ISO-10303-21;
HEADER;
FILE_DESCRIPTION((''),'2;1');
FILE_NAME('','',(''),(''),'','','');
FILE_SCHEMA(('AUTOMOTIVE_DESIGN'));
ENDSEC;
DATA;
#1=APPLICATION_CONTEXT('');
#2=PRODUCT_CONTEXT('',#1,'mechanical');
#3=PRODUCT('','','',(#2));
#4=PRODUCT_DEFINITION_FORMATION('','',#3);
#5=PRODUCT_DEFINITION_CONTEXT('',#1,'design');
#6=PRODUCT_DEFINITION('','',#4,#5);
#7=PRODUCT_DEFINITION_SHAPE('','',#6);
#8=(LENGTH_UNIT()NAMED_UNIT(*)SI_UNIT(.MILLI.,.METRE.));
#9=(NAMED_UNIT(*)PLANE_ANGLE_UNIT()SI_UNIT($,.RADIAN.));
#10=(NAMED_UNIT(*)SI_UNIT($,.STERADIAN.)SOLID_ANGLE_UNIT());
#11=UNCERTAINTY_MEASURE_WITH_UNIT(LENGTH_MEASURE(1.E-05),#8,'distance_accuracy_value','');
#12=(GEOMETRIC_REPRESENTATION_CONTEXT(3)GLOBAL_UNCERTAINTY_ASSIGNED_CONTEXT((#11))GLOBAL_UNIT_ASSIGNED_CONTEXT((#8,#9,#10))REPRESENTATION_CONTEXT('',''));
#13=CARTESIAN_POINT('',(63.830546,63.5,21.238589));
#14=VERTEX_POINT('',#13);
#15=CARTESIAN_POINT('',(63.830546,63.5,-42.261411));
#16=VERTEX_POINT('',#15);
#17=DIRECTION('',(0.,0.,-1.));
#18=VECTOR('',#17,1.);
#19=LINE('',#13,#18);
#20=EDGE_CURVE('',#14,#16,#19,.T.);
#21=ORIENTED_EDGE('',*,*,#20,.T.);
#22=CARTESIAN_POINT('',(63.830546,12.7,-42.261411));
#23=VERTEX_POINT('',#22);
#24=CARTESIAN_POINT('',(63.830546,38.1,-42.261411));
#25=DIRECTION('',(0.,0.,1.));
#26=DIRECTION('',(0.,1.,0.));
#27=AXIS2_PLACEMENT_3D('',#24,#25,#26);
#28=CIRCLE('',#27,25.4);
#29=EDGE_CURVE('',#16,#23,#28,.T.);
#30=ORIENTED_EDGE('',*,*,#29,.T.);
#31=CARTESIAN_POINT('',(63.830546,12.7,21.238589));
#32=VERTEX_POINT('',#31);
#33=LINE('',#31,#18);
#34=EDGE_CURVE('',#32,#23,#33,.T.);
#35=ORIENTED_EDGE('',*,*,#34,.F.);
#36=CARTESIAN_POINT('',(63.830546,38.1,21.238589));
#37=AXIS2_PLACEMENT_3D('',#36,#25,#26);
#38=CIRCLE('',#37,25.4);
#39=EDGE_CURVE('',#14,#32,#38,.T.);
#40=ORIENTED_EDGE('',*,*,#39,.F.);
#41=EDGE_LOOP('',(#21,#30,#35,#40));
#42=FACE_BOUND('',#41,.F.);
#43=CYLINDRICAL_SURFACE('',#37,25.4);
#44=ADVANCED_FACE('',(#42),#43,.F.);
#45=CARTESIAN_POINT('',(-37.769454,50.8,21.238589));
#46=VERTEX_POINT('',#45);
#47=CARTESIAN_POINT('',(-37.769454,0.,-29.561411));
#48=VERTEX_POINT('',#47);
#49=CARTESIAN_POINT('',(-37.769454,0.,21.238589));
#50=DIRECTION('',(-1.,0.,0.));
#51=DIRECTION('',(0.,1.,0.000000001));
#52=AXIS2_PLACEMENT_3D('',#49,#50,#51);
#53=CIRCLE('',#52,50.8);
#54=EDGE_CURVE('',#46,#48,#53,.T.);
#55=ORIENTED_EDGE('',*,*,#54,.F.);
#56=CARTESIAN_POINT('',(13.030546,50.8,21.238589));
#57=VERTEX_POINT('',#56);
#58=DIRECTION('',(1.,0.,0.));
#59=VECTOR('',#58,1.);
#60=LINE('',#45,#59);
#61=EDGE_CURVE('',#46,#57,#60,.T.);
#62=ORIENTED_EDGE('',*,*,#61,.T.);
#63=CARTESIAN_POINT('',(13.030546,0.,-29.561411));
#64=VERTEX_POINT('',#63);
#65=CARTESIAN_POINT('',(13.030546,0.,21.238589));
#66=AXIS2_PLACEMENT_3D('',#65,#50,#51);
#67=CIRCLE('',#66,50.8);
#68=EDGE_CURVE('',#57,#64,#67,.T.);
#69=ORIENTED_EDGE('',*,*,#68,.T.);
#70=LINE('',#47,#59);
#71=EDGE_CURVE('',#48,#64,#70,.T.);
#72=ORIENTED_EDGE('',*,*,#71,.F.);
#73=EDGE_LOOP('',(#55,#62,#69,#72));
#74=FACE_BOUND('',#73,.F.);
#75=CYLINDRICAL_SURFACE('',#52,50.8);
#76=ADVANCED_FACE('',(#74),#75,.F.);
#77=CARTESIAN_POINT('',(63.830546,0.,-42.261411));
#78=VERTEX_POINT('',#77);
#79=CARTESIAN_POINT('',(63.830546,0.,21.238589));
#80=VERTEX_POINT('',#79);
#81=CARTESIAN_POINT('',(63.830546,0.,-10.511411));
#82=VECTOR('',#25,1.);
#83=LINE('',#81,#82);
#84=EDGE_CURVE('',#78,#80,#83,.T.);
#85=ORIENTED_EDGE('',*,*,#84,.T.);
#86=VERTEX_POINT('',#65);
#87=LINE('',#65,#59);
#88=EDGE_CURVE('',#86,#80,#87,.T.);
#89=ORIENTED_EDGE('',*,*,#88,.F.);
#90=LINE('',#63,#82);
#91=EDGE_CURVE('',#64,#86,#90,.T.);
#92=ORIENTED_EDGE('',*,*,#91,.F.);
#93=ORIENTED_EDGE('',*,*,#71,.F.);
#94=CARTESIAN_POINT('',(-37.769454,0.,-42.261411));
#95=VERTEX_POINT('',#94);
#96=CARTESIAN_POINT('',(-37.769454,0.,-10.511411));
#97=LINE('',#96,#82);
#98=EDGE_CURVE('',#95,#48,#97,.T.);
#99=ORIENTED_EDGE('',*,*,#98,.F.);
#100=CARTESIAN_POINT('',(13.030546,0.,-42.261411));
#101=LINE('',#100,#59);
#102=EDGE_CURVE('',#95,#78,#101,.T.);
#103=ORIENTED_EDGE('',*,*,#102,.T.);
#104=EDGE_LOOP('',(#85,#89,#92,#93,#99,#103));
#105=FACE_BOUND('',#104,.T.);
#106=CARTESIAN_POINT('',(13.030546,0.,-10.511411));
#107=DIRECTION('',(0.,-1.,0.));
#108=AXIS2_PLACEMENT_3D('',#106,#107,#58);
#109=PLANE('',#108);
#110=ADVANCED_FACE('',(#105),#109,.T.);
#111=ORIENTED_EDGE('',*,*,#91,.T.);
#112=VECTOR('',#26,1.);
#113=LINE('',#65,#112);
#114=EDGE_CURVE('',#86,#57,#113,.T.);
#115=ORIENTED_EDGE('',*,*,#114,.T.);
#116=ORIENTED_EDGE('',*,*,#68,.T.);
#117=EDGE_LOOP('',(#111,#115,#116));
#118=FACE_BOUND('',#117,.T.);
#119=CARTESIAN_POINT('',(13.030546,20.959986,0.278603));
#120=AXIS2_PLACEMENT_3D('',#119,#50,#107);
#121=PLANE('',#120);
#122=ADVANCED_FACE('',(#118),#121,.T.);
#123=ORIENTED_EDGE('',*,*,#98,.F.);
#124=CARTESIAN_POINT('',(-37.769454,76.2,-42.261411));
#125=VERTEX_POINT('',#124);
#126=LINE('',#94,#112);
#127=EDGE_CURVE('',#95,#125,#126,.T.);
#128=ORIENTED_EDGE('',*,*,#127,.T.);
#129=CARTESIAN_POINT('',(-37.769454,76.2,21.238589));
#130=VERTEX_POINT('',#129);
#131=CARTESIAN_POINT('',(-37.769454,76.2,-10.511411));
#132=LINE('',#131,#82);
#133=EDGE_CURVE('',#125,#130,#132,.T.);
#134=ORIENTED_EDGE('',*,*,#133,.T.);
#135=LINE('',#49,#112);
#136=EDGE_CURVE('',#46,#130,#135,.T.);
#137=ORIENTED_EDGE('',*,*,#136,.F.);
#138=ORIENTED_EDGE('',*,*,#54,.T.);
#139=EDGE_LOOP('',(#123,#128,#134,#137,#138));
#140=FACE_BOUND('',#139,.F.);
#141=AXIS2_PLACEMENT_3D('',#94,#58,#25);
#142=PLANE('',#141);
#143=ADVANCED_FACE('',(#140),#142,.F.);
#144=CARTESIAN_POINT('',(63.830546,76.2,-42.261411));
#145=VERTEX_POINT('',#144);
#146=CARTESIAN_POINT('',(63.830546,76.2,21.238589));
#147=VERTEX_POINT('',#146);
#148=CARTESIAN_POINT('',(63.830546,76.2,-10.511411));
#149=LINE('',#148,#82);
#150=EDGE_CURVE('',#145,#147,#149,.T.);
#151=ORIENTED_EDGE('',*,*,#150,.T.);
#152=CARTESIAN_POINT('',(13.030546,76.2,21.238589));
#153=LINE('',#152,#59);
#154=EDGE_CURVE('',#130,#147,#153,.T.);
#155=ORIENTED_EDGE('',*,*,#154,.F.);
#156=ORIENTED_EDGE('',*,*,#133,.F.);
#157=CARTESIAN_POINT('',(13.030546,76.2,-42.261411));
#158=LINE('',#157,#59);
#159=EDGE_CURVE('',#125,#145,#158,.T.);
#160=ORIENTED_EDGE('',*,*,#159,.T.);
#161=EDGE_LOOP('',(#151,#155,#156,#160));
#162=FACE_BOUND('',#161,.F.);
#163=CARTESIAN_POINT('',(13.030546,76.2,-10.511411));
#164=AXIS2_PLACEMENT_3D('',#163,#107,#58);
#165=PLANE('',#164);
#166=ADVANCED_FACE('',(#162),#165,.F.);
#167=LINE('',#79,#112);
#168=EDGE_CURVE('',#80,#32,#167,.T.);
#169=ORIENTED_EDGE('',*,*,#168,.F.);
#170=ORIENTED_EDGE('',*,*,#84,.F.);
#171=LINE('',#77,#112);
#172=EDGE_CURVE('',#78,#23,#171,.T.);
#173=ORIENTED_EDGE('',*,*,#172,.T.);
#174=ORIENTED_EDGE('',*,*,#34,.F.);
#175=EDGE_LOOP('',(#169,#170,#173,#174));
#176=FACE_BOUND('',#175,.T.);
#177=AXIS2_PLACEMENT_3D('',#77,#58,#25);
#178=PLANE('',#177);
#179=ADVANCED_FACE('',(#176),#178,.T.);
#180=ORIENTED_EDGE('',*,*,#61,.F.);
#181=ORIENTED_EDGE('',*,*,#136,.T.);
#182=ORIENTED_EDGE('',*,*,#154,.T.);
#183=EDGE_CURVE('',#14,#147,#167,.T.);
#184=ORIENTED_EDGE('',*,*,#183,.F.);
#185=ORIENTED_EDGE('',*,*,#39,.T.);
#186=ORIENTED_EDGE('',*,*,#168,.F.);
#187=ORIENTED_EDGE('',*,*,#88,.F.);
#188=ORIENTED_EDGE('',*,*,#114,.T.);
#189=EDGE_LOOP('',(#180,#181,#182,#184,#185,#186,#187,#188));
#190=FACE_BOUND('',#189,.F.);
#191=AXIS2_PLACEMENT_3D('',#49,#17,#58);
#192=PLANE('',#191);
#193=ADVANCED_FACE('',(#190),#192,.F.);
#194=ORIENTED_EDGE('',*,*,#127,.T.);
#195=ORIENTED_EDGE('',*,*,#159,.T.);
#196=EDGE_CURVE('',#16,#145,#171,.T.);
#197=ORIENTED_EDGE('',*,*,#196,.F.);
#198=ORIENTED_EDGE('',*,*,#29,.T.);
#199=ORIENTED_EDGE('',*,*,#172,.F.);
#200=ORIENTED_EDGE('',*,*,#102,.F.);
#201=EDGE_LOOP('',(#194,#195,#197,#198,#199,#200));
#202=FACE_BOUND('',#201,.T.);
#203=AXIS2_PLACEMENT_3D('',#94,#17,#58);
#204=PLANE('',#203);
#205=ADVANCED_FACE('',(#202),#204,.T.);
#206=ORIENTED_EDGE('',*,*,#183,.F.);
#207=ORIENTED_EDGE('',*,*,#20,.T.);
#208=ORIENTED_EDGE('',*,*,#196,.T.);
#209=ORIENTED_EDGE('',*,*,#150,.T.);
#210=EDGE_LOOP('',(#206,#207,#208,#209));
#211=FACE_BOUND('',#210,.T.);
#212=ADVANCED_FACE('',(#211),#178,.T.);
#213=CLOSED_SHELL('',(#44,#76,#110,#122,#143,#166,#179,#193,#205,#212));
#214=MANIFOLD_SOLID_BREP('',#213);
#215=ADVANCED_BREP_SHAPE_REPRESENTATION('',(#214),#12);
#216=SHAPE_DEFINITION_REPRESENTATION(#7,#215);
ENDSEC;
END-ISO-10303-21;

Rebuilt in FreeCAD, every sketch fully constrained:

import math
import FreeCAD as App
import Part
import Sketcher

V = App.Vector
Q = App.Units.Quantity

doc = App.newDocument("Part")
body = doc.addObject("PartDesign::Body", "Body")

sketch1 = body.newObject("Sketcher::SketchObject", "Sketch")
sketch1.AttachmentSupport = (doc.getObject("XZ_Plane"), [""])
sketch1.MapMode = "FlatFace"
sketch1.addGeometry([
    Part.LineSegment(V(-37.769454, 21.238589, 0), V(-37.769454, -42.261411, 0)),
    Part.LineSegment(V(-37.769454, -42.261411, 0), V(63.830546, -42.261411, 0)),
    Part.LineSegment(V(63.830546, -42.261411, 0), V(63.830546, 21.238589, 0)),
    Part.LineSegment(V(63.830546, 21.238589, 0), V(-37.769454, 21.238589, 0)),
], False)
sketch1.addConstraint([
    Sketcher.Constraint("Coincident", 0, 2, 1, 1),
    Sketcher.Constraint("Coincident", 1, 2, 2, 1),
    Sketcher.Constraint("Coincident", 2, 2, 3, 1),
    Sketcher.Constraint("Coincident", 3, 2, 0, 1),
    Sketcher.Constraint("Vertical", 0),
    Sketcher.Constraint("Horizontal", 1),
    Sketcher.Constraint("Vertical", 2),
    Sketcher.Constraint("Horizontal", 3),
    Sketcher.Constraint("DistanceX", 1, 1, 1, 2, Q("4 in")),
    Sketcher.Constraint("DistanceY", 0, 2, 0, 1, Q("2.5 in")),
    Sketcher.Constraint("DistanceY", 0, 2, -1, 1, Q("42.261411 mm")),
    Sketcher.Constraint("DistanceX", 0, 2, -1, 1, Q("37.769454 mm")),
])
pad1 = body.newObject("PartDesign::Pad", "Pad")
pad1.Profile = sketch1
pad1.Length = Q("3 in")
pad1.Reversed = True

sketch2 = body.newObject("Sketcher::SketchObject", "Sketch001")
sketch2.AttachmentSupport = (doc.getObject("XY_Plane"), [""])
sketch2.MapMode = "FlatFace"
sketch2.AttachmentOffset = App.Placement(V(0, 0, 21.238589), App.Rotation())
sketch2.addGeometry([
    Part.LineSegment(V(63.830546, 12.7, 0), V(63.830546, 63.5, 0)),
    Part.ArcOfCircle(Part.Circle(V(63.830546, 38.1, 0), V(0, 0, 1), 25.4), math.radians(90), math.radians(270)),
], False)
sketch2.addConstraint([
    Sketcher.Constraint("Coincident", 0, 1, 1, 2),
    Sketcher.Constraint("Coincident", 1, 1, 0, 2),
    Sketcher.Constraint("Vertical", 0),
    Sketcher.Constraint("Vertical", 1, 3, 0, 1),
    Sketcher.Constraint("Radius", 1, Q("1 in")),
    Sketcher.Constraint("DistanceY", -1, 1, 1, 3, Q("1.5 in")),
    Sketcher.Constraint("DistanceX", -1, 1, 1, 3, Q("63.830546 mm")),
])
pocket1 = body.newObject("PartDesign::Pocket", "Pocket")
pocket1.Profile = sketch2
pocket1.Type = "ThroughAll"

sketch3 = body.newObject("Sketcher::SketchObject", "Sketch002")
sketch3.AttachmentSupport = (doc.getObject("YZ_Plane"), [""])
sketch3.MapMode = "FlatFace"
sketch3.AttachmentOffset = App.Placement(V(0, 0, -37.769454), App.Rotation())
sketch3.addGeometry([
    Part.LineSegment(V(0, 21.238589, 0), V(50.8, 21.238589, 0)),
    Part.ArcOfCircle(Part.Circle(V(0, 21.238589, 0), V(0, 0, 1), 50.8), math.radians(-90), math.radians(0)),
    Part.LineSegment(V(0, -29.561411, 0), V(0, 21.238589, 0)),
], False)
sketch3.addConstraint([
    Sketcher.Constraint("Coincident", 0, 2, 1, 2),
    Sketcher.Constraint("Coincident", 1, 1, 2, 1),
    Sketcher.Constraint("Coincident", 2, 2, 0, 1),
    Sketcher.Constraint("Horizontal", 0),
    Sketcher.Constraint("Vertical", 2),
    Sketcher.Constraint("Coincident", 2, 2, 1, 3),
    Sketcher.Constraint("PointOnObject", 1, 3, -2),
    Sketcher.Constraint("Radius", 1, Q("2 in")),
    Sketcher.Constraint("DistanceY", -1, 1, 1, 3, Q("21.238589 mm")),
])
pocket2 = body.newObject("PartDesign::Pocket", "Pocket001")
pocket2.Profile = sketch3
pocket2.Length = Q("2 in")
pocket2.Reversed = True

doc.recompute()
